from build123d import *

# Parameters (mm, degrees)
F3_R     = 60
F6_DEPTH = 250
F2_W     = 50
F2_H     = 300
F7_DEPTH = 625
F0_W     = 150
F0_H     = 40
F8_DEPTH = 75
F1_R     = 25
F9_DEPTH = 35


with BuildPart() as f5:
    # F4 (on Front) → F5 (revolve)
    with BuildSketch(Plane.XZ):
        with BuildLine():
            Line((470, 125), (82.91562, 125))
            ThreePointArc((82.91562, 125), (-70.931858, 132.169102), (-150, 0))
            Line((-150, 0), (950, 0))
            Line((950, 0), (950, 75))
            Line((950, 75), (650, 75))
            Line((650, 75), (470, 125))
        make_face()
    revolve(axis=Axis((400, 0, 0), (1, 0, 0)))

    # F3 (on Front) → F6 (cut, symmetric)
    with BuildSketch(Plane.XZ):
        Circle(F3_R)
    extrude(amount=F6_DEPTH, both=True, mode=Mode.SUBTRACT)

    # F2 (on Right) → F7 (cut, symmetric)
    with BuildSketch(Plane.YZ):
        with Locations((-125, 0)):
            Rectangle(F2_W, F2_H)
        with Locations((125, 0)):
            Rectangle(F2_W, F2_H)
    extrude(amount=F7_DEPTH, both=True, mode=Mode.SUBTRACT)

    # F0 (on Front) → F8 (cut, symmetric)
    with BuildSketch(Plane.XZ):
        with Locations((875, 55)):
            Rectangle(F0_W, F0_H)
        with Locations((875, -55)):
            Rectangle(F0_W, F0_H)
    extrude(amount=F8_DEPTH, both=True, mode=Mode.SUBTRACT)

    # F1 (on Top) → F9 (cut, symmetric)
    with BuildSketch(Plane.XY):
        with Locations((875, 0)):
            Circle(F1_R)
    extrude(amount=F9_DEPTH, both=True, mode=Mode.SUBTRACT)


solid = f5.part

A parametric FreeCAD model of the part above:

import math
import FreeCAD as App
import Part
import Sketcher


def add_polygon(sketch, points):
    """Adds a closed chain of lines whose ends are joined by coincident constraints."""
    first, n = sketch.GeometryCount, len(points)
    for a, b in zip(points, points[1:] + points[:1]):
        sketch.addGeometry(Part.LineSegment(App.Vector(*a, 0), App.Vector(*b, 0)), False)
    for i in range(n):
        sketch.addConstraint(Sketcher.Constraint("Coincident", first + i, 2, first + (i + 1) % n, 1))

doc = App.newDocument("Part")
params = doc.addObject("Spreadsheet::Sheet", "Params")
for row, (alias, value) in enumerate([
    ("sketch1_radius", "150 mm"),
    ("sketch1_width", "1100 mm"),
    ("sketch1_width2", "300 mm"),
    ("sketch1_height", "75 mm"),
    ("revolution_angle", "360 deg"),
    ("sketch2_diameter", "120 mm"),
    ("pocket1_length", "500 mm"),
    ("sketch3_width", "50 mm"),
    ("sketch3_height", "300 mm"),
    ("pocket2_length", "1250 mm"),
    ("sketch4_width", "150 mm"),
    ("sketch4_height", "40 mm"),
    ("pocket3_length", "150 mm"),
    ("sketch5_diameter", "50 mm"),
    ("pocket4_length", "70 mm"),
], start=1):
    params.set(f"A{row}", alias)
    params.set(f"B{row}", "=" + value)
    params.setAlias(f"B{row}", alias)

body = doc.addObject("PartDesign::Body", "Body")

# Sketch on XZ plane
sketch1 = doc.addObject("Sketcher::SketchObject", "Sketch")
body.addObject(sketch1)
sketch1.AttachmentSupport = (doc.XZ_Plane, [""])
sketch1.MapMode = "FlatFace"
sketch1.addGeometry(Part.LineSegment(App.Vector(470, 125, 0), App.Vector(82.91562, 125, 0)), False)
sketch1.addGeometry(Part.ArcOfCircle(Part.Circle(App.Vector(0, 0, 0), App.Vector(0, 0, 1), 150), math.radians(56.44269), math.radians(180)), False)
sketch1.addGeometry(Part.LineSegment(App.Vector(-150, 0, 0), App.Vector(950, 0, 0)), False)
sketch1.addGeometry(Part.LineSegment(App.Vector(950, 0, 0), App.Vector(950, 75, 0)), False)
sketch1.addGeometry(Part.LineSegment(App.Vector(950, 75, 0), App.Vector(650, 75, 0)), False)
sketch1.addGeometry(Part.LineSegment(App.Vector(650, 75, 0), App.Vector(470, 125, 0)), False)
sketch1.addConstraint(Sketcher.Constraint("Coincident", 0, 2, 1, 1))
sketch1.addConstraint(Sketcher.Constraint("Coincident", 1, 2, 2, 1))
sketch1.addConstraint(Sketcher.Constraint("Coincident", 2, 2, 3, 1))
sketch1.addConstraint(Sketcher.Constraint("Coincident", 3, 2, 4, 1))
sketch1.addConstraint(Sketcher.Constraint("Coincident", 4, 2, 5, 1))
sketch1.addConstraint(Sketcher.Constraint("Coincident", 5, 2, 0, 1))
sketch1.addConstraint(Sketcher.Constraint("Horizontal", 0))
sketch1.addConstraint(Sketcher.Constraint("Horizontal", 2))
sketch1.addConstraint(Sketcher.Constraint("Vertical", 3))
sketch1.addConstraint(Sketcher.Constraint("Horizontal", 4))
sketch1.addConstraint(Sketcher.Constraint("Coincident", 1, 3, -1, 1))
sketch1.addConstraint(Sketcher.Constraint("PointOnObject", 1, 2, -1))
sketch1.addConstraint(Sketcher.Constraint("Radius", 1, 150.0))
sketch1.addConstraint(Sketcher.Constraint("DistanceX", 2, 1, 2, 2, 1100.0))
sketch1.addConstraint(Sketcher.Constraint("DistanceX", 4, 2, 4, 1, 300.0))
sketch1.addConstraint(Sketcher.Constraint("DistanceY", 3, 1, 3, 2, 75.0))
sketch1.addConstraint(Sketcher.Constraint("DistanceY", -1, 1, 0, 2, 125.0))
sketch1.addConstraint(Sketcher.Constraint("DistanceX", -1, 1, 5, 2, 470.0))
sketch1.setExpression("Constraints[12]", "Params.sketch1_radius")
sketch1.setExpression("Constraints[13]", "Params.sketch1_width")
sketch1.setExpression("Constraints[14]", "Params.sketch1_width2")
sketch1.setExpression("Constraints[15]", "Params.sketch1_height")
revolution = doc.addObject("PartDesign::Revolution", "Revolution")
body.addObject(revolution)
revolution.Profile = sketch1
revolution.ReferenceAxis = (sketch1, ["H_Axis"])
revolution.setExpression("Angle", "Params.revolution_angle")

# Sketch on XZ plane
sketch2 = doc.addObject("Sketcher::SketchObject", "Sketch001")
body.addObject(sketch2)
sketch2.AttachmentSupport = (doc.XZ_Plane, [""])
sketch2.MapMode = "FlatFace"
sketch2.addGeometry(Part.Circle(App.Vector(0, 0, 0), App.Vector(0, 0, 1), 60), False)
sketch2.addConstraint(Sketcher.Constraint("Coincident", 0, 3, -1, 1))
sketch2.addConstraint(Sketcher.Constraint("Diameter", 0, 120.0))
sketch2.setExpression("Constraints[1]", "Params.sketch2_diameter")
pocket1 = doc.addObject("PartDesign::Pocket", "Pocket")
body.addObject(pocket1)
pocket1.Profile = sketch2
pocket1.setExpression("Length", "Params.pocket1_length")
pocket1.Midplane = True

# Sketch on YZ plane
sketch3 = doc.addObject("Sketcher::SketchObject", "Sketch002")
body.addObject(sketch3)
sketch3.AttachmentSupport = (doc.YZ_Plane, [""])
sketch3.MapMode = "FlatFace"
add_polygon(sketch3, [(-150, 150), (-150, -150), (-100, -150), (-100, 150)])  # lines 0-3
add_polygon(sketch3, [(100, 150), (100, -150), (150, -150), (150, 150)])  # lines 4-7
sketch3.addConstraint(Sketcher.Constraint("Vertical", 0))
sketch3.addConstraint(Sketcher.Constraint("Horizontal", 1))
sketch3.addConstraint(Sketcher.Constraint("Vertical", 2))
sketch3.addConstraint(Sketcher.Constraint("Horizontal", 3))
sketch3.addConstraint(Sketcher.Constraint("Vertical", 4))
sketch3.addConstraint(Sketcher.Constraint("Horizontal", 5))
sketch3.addConstraint(Sketcher.Constraint("Vertical", 6))
sketch3.addConstraint(Sketcher.Constraint("Horizontal", 7))
sketch3.addConstraint(Sketcher.Constraint("Symmetric", 2, 2, 4, 2, -1, 1))
sketch3.addConstraint(Sketcher.Constraint("Symmetric", 0, 2, 6, 2, -1, 1))
sketch3.addConstraint(Sketcher.Constraint("Horizontal", 1, 2, 4, 2))
sketch3.addConstraint(Sketcher.Constraint("DistanceX", 1, 1, 1, 2, 50.0))
sketch3.addConstraint(Sketcher.Constraint("DistanceY", 0, 2, 0, 1, 300.0))
sketch3.addConstraint(Sketcher.Constraint("DistanceX", 0, 2, -1, 1, 150.0))
sketch3.setExpression("Constraints[19]", "Params.sketch3_width")
sketch3.setExpression("Constraints[20]", "Params.sketch3_height")
pocket2 = doc.addObject("PartDesign::Pocket", "Pocket001")
body.addObject(pocket2)
pocket2.Profile = sketch3
pocket2.setExpression("Length", "Params.pocket2_length")
pocket2.Midplane = True

# Sketch on XZ plane
sketch4 = doc.addObject("Sketcher::SketchObject", "Sketch003")
body.addObject(sketch4)
sketch4.AttachmentSupport = (doc.XZ_Plane, [""])
sketch4.MapMode = "FlatFace"
add_polygon(sketch4, [(800, 75), (800, 35), (950, 35), (950, 75)])  # lines 0-3
add_polygon(sketch4, [(800, -35), (800, -75), (950, -75), (950, -35)])  # lines 4-7
sketch4.addConstraint(Sketcher.Constraint("Vertical", 0))
sketch4.addConstraint(Sketcher.Constraint("Horizontal", 1))
sketch4.addConstraint(Sketcher.Constraint("Vertical", 2))
sketch4.addConstraint(Sketcher.Constraint("Horizontal", 3))
sketch4.addConstraint(Sketcher.Constraint("Vertical", 4))
sketch4.addConstraint(Sketcher.Constraint("Horizontal", 5))
sketch4.addConstraint(Sketcher.Constraint("Vertical", 6))
sketch4.addConstraint(Sketcher.Constraint("Horizontal", 7))
sketch4.addConstraint(Sketcher.Constraint("Symmetric", 3, 2, 4, 2, -1))
sketch4.addConstraint(Sketcher.Constraint("Symmetric", 1, 2, 6, 2, -1))
sketch4.addConstraint(Sketcher.Constraint("DistanceX", 1, 1, 1, 2, 150.0))
sketch4.addConstraint(Sketcher.Constraint("DistanceY", 0, 2, 0, 1, 40.0))
sketch4.addConstraint(Sketcher.Constraint("DistanceX", -1, 1, 0, 2, 800.0))
sketch4.addConstraint(Sketcher.Constraint("DistanceY", -1, 1, 0, 2, 35.0))
sketch4.setExpression("Constraints[18]", "Params.sketch4_width")
sketch4.setExpression("Constraints[19]", "Params.sketch4_height")
pocket3 = doc.addObject("PartDesign::Pocket", "Pocket002")
body.addObject(pocket3)
pocket3.Profile = sketch4
pocket3.setExpression("Length", "Params.pocket3_length")
pocket3.Midplane = True

# Sketch on XY plane
sketch5 = doc.addObject("Sketcher::SketchObject", "Sketch004")
body.addObject(sketch5)
sketch5.AttachmentSupport = (doc.XY_Plane, [""])
sketch5.MapMode = "FlatFace"
sketch5.addGeometry(Part.Circle(App.Vector(875, 0, 0), App.Vector(0, 0, 1), 25), False)
sketch5.addConstraint(Sketcher.Constraint("PointOnObject", 0, 3, -1))
sketch5.addConstraint(Sketcher.Constraint("Diameter", 0, 50.0))
sketch5.addConstraint(Sketcher.Constraint("DistanceX", -1, 1, 0, 3, 875.0))
sketch5.setExpression("Constraints[1]", "Params.sketch5_diameter")
pocket4 = doc.addObject("PartDesign::Pocket", "Pocket003")
body.addObject(pocket4)
pocket4.Profile = sketch5
pocket4.setExpression("Length", "Params.pocket4_length")
pocket4.Midplane = True

doc.recompute()
